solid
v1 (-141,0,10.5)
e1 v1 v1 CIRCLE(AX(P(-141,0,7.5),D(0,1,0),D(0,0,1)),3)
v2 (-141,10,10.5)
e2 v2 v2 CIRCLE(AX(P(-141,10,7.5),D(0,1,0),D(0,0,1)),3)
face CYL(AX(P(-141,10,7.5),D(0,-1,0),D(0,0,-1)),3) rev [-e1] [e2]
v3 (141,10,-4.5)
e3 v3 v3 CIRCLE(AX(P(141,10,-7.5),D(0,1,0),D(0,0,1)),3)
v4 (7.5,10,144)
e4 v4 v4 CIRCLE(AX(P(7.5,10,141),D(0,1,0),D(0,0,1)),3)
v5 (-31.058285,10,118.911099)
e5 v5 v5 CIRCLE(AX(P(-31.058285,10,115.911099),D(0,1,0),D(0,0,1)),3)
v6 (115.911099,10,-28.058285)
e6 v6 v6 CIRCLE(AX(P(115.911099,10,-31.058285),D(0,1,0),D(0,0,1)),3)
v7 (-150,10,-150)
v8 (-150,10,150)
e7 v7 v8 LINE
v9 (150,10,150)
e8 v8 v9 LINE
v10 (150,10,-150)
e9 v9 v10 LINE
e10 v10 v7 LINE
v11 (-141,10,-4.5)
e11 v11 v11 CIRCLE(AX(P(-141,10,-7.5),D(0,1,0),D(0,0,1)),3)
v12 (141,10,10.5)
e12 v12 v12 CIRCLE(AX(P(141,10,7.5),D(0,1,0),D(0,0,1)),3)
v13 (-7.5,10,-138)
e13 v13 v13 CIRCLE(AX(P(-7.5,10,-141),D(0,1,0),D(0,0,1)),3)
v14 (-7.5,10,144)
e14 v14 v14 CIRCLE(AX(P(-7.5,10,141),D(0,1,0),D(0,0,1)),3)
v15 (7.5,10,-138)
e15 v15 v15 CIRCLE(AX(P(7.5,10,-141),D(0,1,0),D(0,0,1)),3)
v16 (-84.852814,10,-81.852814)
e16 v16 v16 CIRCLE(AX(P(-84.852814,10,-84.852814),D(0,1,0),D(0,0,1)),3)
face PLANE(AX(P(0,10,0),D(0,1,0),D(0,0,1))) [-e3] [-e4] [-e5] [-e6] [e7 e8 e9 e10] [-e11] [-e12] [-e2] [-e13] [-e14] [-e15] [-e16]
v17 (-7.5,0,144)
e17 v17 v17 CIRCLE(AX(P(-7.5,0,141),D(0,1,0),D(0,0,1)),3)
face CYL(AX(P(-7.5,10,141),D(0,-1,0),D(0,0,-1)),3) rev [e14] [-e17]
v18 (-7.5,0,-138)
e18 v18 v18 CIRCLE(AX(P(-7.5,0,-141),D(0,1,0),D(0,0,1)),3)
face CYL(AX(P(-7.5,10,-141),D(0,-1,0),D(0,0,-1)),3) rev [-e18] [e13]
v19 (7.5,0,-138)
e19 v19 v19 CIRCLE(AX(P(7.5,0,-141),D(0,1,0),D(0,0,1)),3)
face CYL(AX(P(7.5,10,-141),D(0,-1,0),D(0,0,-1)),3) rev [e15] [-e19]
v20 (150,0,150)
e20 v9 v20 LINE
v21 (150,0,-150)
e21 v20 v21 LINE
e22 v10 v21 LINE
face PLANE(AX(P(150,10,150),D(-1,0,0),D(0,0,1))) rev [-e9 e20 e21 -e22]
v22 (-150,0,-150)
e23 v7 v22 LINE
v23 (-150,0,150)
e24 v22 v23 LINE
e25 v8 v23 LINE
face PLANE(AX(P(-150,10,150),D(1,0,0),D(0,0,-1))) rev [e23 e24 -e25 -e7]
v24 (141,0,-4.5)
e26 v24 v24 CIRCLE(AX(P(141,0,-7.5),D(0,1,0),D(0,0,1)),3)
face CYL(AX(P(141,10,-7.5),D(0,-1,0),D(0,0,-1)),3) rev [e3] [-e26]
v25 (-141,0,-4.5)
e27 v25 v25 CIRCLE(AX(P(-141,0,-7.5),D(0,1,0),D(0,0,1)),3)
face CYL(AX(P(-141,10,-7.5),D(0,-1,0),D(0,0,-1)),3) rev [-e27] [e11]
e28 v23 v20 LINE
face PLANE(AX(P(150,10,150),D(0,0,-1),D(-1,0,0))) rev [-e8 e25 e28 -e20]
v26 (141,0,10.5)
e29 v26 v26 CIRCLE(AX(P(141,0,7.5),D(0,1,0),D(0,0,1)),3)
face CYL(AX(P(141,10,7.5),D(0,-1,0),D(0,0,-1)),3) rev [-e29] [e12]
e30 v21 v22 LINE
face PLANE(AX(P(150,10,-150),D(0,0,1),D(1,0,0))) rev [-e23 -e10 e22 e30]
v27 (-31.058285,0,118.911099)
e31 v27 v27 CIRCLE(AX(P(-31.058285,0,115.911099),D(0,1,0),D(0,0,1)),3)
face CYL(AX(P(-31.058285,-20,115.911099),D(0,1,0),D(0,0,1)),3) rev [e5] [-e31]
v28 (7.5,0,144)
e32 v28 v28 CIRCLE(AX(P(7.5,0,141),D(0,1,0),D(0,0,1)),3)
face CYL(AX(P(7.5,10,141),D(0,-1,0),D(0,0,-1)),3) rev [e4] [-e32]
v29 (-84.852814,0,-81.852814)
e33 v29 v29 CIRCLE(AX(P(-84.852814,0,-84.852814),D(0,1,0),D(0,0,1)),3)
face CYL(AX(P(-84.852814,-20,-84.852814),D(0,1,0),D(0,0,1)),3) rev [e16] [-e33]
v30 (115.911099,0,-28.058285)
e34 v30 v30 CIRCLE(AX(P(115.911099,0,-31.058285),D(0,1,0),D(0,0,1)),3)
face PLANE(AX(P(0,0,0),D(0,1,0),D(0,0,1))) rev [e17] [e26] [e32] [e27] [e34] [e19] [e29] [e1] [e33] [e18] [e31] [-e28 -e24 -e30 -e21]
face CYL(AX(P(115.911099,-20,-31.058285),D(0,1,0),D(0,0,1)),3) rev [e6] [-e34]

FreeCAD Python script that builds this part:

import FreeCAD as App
import Part
import Sketcher
Q = App.Units.Quantity

doc = App.newDocument("Part")
body = doc.addObject("PartDesign::Body", "Body")

# Sketch on XZ plane
sketch1 = body.newObject("Sketcher::SketchObject", "Sketch")
sketch1.AttachmentSupport = (doc.getObject("XZ_Plane"), [""])
sketch1.MapMode = "FlatFace"
sketch1.addGeometry([
    Part.LineSegment(App.Vector(-150, -150, 0), App.Vector(-150, 150, 0)),  # 0
    Part.LineSegment(App.Vector(-150, 150, 0), App.Vector(150, 150, 0)),  # 1
    Part.LineSegment(App.Vector(150, 150, 0), App.Vector(150, -150, 0)),  # 2
    Part.LineSegment(App.Vector(150, -150, 0), App.Vector(-150, -150, 0)),  # 3
    Part.Circle(App.Vector(-7.5, 141, 0), App.Vector(0, 0, 1), 3),  # 4
    Part.Circle(App.Vector(-141, 7.5, 0), App.Vector(0, 0, 1), 3),  # 5
    Part.Circle(App.Vector(7.5, 141, 0), App.Vector(0, 0, 1), 3),  # 6
    Part.Circle(App.Vector(141, 7.5, 0), App.Vector(0, 0, 1), 3),  # 7
    Part.Circle(App.Vector(-141, -7.5, 0), App.Vector(0, 0, 1), 3),  # 8
    Part.Circle(App.Vector(-7.5, -141, 0), App.Vector(0, 0, 1), 3),  # 9
    Part.Circle(App.Vector(141, -7.5, 0), App.Vector(0, 0, 1), 3),  # 10
    Part.Circle(App.Vector(7.5, -141, 0), App.Vector(0, 0, 1), 3),  # 11
], False)
sketch1.addConstraint([
    Sketcher.Constraint("Coincident", 0, 2, 1, 1),
    Sketcher.Constraint("Coincident", 1, 2, 2, 1),
    Sketcher.Constraint("Coincident", 2, 2, 3, 1),
    Sketcher.Constraint("Coincident", 3, 2, 0, 1),
    Sketcher.Constraint("Vertical", 0),
    Sketcher.Constraint("Horizontal", 1),
    Sketcher.Constraint("Vertical", 2),
    Sketcher.Constraint("Horizontal", 3),
    Sketcher.Constraint("Equal", 4, 5),
    Sketcher.Constraint("Equal", 5, 6),
    Sketcher.Constraint("Equal", 6, 7),
    Sketcher.Constraint("Equal", 7, 8),
    Sketcher.Constraint("Equal", 8, 9),
    Sketcher.Constraint("Equal", 9, 10),
    Sketcher.Constraint("Equal", 10, 11),
    Sketcher.Constraint("Symmetric", 7, 3, 8, 3, -1, 1),
    Sketcher.Constraint("Symmetric", 6, 3, 9, 3, -1, 1),
    Sketcher.Constraint("Symmetric", 5, 3, 10, 3, -1, 1),
    Sketcher.Constraint("Symmetric", 4, 3, 11, 3, -1, 1),
    Sketcher.Constraint("Symmetric", 0, 2, 2, 2, -1, 1),
    Sketcher.Constraint("Symmetric", 4, 3, 6, 3, -2),
    Sketcher.Constraint("Symmetric", 5, 3, 7, 3, -2),
    Sketcher.Constraint("Equal", 3, 0),
    Sketcher.Constraint("Diameter", 4, Q("6 mm")),
    Sketcher.Constraint("DistanceX", 1, 1, 1, 2, Q("300 mm")),
    Sketcher.Constraint("DistanceY", -1, 1, 4, 3, Q("141 mm")),
    Sketcher.Constraint("DistanceX", 5, 3, -1, 1, Q("141 mm")),
    Sketcher.Constraint("DistanceX", 4, 3, 6, 3, Q("15 mm")),
    Sketcher.Constraint("DistanceY", 8, 3, 5, 3, Q("15 mm")),
])
pad1 = body.newObject("PartDesign::Pad", "Pad")
pad1.Profile = sketch1
pad1.Length = 10
pad1.Reversed = True

# Sketch on XZ plane
sketch2 = body.newObject("Sketcher::SketchObject", "Sketch001")
sketch2.AttachmentSupport = (doc.getObject("XZ_Plane"), [""])
sketch2.MapMode = "FlatFace"
sketch2.AttachmentOffset = App.Placement(App.Vector(0, 0, -10), App.Rotation())
sketch2.addGeometry([
    Part.Circle(App.Vector(-84.9, -84.9, 0), App.Vector(0, 0, 1), 3),
    Part.Circle(App.Vector(115.9, -31.1, 0), App.Vector(0, 0, 1), 3),
    Part.Circle(App.Vector(-31.1, 115.9, 0), App.Vector(0, 0, 1), 3),
], False)
sketch2.addConstraint([
    Sketcher.Constraint("Equal", 0, 1),
    Sketcher.Constraint("Equal", 1, 2),
    Sketcher.Constraint("Diameter", 0, Q("6 mm")),
    Sketcher.Constraint("DistanceX", -1, 1, 1, 3, Q("115.911099 mm")),
    Sketcher.Constraint("DistanceY", -1, 1, 2, 3, Q("115.911099 mm")),
    Sketcher.Constraint("DistanceY", 0, 3, 1, 3, Q("53.794528 mm")),
    Sketcher.Constraint("DistanceX", 0, 3, 2, 3, Q("53.794528 mm")),
    Sketcher.Constraint("DistanceX", 0, 3, -1, 1, Q("84.852814 mm")),
    Sketcher.Constraint("DistanceY", 0, 3, -1, 1, Q("84.852814 mm")),
])
pocket1 = body.newObject("PartDesign::Pocket", "Pocket")
pocket1.Profile = sketch2
pocket1.Length = 30
pocket1.Reversed = True

doc.recompute()
